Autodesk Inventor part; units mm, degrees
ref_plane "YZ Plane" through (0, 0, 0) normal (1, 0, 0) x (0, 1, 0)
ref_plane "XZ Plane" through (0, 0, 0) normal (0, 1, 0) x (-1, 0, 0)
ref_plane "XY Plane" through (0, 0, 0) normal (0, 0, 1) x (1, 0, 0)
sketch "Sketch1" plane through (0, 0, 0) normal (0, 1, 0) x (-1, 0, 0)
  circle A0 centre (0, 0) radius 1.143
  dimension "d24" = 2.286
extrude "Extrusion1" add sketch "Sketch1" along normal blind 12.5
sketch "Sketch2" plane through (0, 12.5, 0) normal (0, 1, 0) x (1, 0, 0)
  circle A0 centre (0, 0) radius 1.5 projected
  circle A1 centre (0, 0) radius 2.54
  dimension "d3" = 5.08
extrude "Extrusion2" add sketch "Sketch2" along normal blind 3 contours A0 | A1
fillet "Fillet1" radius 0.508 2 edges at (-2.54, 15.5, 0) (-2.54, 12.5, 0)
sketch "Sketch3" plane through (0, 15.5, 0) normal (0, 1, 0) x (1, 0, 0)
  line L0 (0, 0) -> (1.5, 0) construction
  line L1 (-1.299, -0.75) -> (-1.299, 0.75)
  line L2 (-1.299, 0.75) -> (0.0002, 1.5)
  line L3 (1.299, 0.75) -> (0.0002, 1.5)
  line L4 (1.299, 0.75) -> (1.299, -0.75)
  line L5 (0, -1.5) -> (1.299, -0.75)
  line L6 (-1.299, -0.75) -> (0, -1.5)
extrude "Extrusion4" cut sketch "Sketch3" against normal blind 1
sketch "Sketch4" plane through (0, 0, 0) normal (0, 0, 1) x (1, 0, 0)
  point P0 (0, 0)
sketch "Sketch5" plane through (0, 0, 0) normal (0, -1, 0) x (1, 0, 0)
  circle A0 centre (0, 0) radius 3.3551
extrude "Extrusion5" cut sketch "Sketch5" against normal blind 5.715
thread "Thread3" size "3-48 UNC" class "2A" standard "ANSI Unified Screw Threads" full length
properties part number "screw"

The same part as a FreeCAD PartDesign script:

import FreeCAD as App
import Part
import Sketcher
Q = App.Units.Quantity


def edges_at(feature, points):
    """Names of the edges that pass closest to the given points."""
    edges = feature.Shape.Edges
    near = lambda p: min(range(len(edges)), key=lambda i: edges[i].distToShape(Part.Vertex(*p))[0])
    return sorted({f"Edge{near(p) + 1}" for p in points})

doc = App.newDocument("Part")
body = doc.addObject("PartDesign::Body", "Body")

sketch1 = doc.addObject("Sketcher::SketchObject", "Sketch")
body.addObject(sketch1)
sketch1.AttachmentSupport = (doc.XZ_Plane, [""])
sketch1.MapMode = "FlatFace"
sketch1.addGeometry(Part.Circle(App.Vector(0, 0, 0), App.Vector(0, 0, 1), 1.1), False)
sketch1.addConstraint(Sketcher.Constraint("Coincident", 0, 3, -1, 1))
sketch1.addConstraint(Sketcher.Constraint("Diameter", 0, Q("2.286 mm")))
pad1 = doc.addObject("PartDesign::Pad", "Pad")
body.addObject(pad1)
pad1.Profile = sketch1
pad1.Length = 12.5
pad1.Reversed = True

sketch2 = doc.addObject("Sketcher::SketchObject", "Sketch001")
body.addObject(sketch2)
sketch2.AttachmentSupport = (doc.XZ_Plane, [""])
sketch2.MapMode = "FlatFace"
sketch2.AttachmentOffset = App.Placement(App.Vector(0, 0, -12.5), App.Rotation())
sketch2.addGeometry(Part.Circle(App.Vector(0, 0, 0), App.Vector(0, 0, 1), 2.5), False)
sketch2.addConstraint(Sketcher.Constraint("Coincident", 0, 3, -1, 1))
sketch2.addConstraint(Sketcher.Constraint("Diameter", 0, Q("5.08 mm")))
pad2 = doc.addObject("PartDesign::Pad", "Pad001")
body.addObject(pad2)
pad2.Profile = sketch2
pad2.Length = 3
pad2.Reversed = True
doc.recompute()

fillet = doc.addObject("PartDesign::Fillet", "Fillet")
body.addObject(fillet)
fillet.Base = (pad2, edges_at(pad2, [(-2.54, 15.5, 0), (-2.54, 12.5, 0)]))
fillet.Radius = 0.508

sketch3 = doc.addObject("Sketcher::SketchObject", "Sketch002")
body.addObject(sketch3)
sketch3.AttachmentSupport = (doc.XZ_Plane, [""])
sketch3.MapMode = "FlatFace"
sketch3.AttachmentOffset = App.Placement(App.Vector(0, 0, -15.5), App.Rotation())
sketch3.addGeometry(Part.LineSegment(App.Vector(-1.3, -0.8, 0), App.Vector(-1.3, 0.8, 0)), False)
sketch3.addGeometry(Part.LineSegment(App.Vector(-1.3, 0.8, 0), App.Vector(0, 1.5, 0)), False)
sketch3.addGeometry(Part.LineSegment(App.Vector(0, 1.5, 0), App.Vector(1.3, 0.8, 0)), False)
sketch3.addGeometry(Part.LineSegment(App.Vector(1.3, 0.8, 0), App.Vector(1.3, -0.8, 0)), False)
sketch3.addGeometry(Part.LineSegment(App.Vector(1.3, -0.8, 0), App.Vector(0, -1.5, 0)), False)
sketch3.addGeometry(Part.LineSegment(App.Vector(0, -1.5, 0), App.Vector(-1.3, -0.8, 0)), False)
sketch3.addConstraint(Sketcher.Constraint("Coincident", 0, 2, 1, 1))
sketch3.addConstraint(Sketcher.Constraint("Coincident", 1, 2, 2, 1))
sketch3.addConstraint(Sketcher.Constraint("Coincident", 2, 2, 3, 1))
sketch3.addConstraint(Sketcher.Constraint("Coincident", 3, 2, 4, 1))
sketch3.addConstraint(Sketcher.Constraint("Coincident", 4, 2, 5, 1))
sketch3.addConstraint(Sketcher.Constraint("Coincident", 5, 2, 0, 1))
sketch3.addConstraint(Sketcher.Constraint("Vertical", 0))
sketch3.addConstraint(Sketcher.Constraint("Vertical", 3))
sketch3.addConstraint(Sketcher.Constraint("Symmetric", 0, 2, 3, 2, -1, 1))
sketch3.addConstraint(Sketcher.Constraint("Symmetric", 1, 2, 4, 2, -1, 1))
sketch3.addConstraint(Sketcher.Constraint("PointOnObject", 1, 2, -2))
sketch3.addConstraint(Sketcher.Constraint("Parallel", 2, 5))
sketch3.addConstraint(Sketcher.Constraint("Horizontal", 0, 2, 2, 2))
sketch3.addConstraint(Sketcher.Constraint("Angle", 1, Q("30.0007 deg")))
sketch3.addConstraint(Sketcher.Constraint("DistanceY", 0, 1, 0, 2, Q("1.5 mm")))
sketch3.addConstraint(Sketcher.Constraint("DistanceY", 4, 2, 1, 2, Q("3 mm")))
pocket1 = doc.addObject("PartDesign::Pocket", "Pocket")
body.addObject(pocket1)
pocket1.Profile = sketch3
pocket1.Length = 1
pocket1.Reversed = True

sketch4 = doc.addObject("Sketcher::SketchObject", "Sketch003")
body.addObject(sketch4)
sketch4.AttachmentSupport = (doc.XZ_Plane, [""])
sketch4.MapMode = "FlatFace"
sketch4.addGeometry(Part.Circle(App.Vector(0, 0, 0), App.Vector(0, 0, 1), 3.4), False)
sketch4.addConstraint(Sketcher.Constraint("Coincident", 0, 3, -1, 1))
sketch4.addConstraint(Sketcher.Constraint("Diameter", 0, Q("6.7102 mm")))
pocket2 = doc.addObject("PartDesign::Pocket", "Pocket001")
body.addObject(pocket2)
pocket2.Profile = sketch4
pocket2.Length = 5.715

doc.recompute()
